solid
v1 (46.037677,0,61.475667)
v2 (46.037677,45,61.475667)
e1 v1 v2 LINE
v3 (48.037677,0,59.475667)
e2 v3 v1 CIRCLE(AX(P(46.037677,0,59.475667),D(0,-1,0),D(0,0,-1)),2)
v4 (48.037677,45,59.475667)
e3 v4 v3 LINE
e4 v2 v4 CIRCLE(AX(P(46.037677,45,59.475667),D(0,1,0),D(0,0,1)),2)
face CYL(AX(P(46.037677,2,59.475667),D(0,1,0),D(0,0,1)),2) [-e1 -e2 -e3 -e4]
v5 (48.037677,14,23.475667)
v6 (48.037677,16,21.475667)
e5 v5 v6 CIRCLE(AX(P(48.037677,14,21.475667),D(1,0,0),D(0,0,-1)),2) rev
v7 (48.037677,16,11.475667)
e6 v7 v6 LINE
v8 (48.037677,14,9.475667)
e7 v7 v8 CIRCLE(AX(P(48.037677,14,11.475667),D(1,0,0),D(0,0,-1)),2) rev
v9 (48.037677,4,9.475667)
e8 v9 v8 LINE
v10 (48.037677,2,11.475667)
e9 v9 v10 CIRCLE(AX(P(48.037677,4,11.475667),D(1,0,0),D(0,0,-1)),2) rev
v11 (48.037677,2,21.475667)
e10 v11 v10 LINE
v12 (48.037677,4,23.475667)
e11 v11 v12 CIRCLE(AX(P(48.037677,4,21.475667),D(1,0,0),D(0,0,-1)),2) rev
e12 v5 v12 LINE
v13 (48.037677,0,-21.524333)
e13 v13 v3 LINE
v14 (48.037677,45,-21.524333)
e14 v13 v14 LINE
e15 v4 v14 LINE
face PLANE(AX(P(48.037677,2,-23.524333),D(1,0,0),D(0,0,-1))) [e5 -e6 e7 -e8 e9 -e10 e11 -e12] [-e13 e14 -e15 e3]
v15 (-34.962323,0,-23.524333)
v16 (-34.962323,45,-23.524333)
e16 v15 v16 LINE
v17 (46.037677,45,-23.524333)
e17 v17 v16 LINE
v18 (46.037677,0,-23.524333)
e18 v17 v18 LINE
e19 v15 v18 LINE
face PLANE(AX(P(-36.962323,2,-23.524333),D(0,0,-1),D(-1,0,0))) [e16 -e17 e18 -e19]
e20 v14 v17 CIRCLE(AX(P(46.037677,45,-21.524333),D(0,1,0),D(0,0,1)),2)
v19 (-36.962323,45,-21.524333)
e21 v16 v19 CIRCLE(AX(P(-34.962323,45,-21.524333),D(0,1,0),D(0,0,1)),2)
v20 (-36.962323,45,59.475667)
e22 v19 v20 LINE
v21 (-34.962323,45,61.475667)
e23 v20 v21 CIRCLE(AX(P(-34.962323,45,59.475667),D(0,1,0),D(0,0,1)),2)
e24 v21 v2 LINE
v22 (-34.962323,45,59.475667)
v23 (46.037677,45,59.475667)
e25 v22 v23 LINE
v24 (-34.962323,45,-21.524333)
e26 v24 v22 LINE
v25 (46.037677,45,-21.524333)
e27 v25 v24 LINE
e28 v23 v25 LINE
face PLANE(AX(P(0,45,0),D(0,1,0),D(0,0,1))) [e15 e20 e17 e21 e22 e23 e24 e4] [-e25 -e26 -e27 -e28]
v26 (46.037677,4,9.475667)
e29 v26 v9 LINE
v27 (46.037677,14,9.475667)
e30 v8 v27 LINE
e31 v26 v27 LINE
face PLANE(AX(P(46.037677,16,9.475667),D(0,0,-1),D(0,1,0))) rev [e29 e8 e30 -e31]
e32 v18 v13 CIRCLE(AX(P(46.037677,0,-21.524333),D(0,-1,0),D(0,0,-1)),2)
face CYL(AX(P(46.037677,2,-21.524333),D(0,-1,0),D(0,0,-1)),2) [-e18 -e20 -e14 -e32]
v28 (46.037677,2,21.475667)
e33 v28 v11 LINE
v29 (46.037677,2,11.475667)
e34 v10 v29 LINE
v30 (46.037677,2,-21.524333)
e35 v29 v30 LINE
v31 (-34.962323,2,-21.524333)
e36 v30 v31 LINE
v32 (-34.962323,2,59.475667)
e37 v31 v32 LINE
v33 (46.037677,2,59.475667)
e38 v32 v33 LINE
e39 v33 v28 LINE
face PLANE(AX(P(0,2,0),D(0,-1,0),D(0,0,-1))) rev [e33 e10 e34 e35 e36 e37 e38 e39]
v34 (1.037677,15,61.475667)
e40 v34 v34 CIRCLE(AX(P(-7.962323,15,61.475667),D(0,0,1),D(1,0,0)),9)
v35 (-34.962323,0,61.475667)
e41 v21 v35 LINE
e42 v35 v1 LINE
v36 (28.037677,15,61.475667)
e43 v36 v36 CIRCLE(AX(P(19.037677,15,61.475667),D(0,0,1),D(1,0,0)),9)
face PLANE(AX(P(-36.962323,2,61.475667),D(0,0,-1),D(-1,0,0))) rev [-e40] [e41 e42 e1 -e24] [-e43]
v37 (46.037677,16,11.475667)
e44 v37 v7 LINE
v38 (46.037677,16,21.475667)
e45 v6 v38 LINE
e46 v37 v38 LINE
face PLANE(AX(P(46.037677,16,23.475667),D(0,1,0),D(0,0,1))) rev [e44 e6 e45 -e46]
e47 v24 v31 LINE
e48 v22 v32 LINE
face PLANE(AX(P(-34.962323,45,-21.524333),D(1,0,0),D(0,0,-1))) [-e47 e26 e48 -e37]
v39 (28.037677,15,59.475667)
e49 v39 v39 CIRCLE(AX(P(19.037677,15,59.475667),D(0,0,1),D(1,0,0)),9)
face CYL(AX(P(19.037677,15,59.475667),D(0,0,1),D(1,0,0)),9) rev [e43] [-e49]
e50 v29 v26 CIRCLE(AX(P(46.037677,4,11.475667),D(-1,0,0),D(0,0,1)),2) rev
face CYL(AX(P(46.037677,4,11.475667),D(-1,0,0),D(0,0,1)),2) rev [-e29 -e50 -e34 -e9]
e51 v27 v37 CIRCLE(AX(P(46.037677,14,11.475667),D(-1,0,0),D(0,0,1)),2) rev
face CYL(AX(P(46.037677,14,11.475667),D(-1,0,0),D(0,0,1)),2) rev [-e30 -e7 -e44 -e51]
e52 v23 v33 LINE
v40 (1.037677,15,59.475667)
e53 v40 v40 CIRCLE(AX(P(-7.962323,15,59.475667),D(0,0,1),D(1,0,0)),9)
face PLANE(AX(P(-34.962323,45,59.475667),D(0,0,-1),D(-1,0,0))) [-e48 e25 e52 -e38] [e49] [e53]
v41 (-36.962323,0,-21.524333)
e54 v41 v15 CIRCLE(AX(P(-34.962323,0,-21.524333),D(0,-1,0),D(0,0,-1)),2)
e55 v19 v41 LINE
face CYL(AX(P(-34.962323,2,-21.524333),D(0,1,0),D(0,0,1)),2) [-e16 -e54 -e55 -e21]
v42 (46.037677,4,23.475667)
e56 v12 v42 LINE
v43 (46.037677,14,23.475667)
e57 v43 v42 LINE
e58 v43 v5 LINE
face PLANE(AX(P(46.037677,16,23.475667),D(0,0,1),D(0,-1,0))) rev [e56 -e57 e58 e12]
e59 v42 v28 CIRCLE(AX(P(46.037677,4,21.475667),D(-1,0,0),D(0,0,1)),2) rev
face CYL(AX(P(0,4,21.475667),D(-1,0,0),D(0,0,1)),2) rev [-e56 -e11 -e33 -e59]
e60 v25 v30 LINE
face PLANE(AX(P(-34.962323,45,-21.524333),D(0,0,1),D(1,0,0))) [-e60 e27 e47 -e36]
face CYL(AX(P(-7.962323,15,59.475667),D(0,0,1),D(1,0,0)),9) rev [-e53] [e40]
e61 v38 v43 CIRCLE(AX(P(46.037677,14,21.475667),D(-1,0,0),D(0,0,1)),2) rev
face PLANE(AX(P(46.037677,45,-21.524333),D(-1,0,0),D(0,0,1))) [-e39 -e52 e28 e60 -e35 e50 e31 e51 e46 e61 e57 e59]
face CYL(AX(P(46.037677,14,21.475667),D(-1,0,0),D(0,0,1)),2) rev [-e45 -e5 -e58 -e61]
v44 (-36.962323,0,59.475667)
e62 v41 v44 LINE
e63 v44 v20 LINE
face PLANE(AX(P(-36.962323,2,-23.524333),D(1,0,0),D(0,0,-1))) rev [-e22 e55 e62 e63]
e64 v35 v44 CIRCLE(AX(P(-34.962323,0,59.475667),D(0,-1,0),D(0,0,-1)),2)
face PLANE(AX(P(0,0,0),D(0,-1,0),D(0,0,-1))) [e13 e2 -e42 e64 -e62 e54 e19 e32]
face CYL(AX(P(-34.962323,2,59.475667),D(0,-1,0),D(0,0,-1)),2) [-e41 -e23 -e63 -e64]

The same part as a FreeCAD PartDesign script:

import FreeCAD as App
import Part
import Sketcher
from FreeCAD import Vector


def edges_at(feature, points):
    """Names of the edges that pass closest to the given points."""
    edges = feature.Shape.Edges
    near = lambda p: min(range(len(edges)), key=lambda i: edges[i].distToShape(Part.Vertex(*p))[0])
    return sorted({f"Edge{near(p) + 1}" for p in points})


def add_polygon(sketch, points):
    """Adds a closed chain of lines whose ends are joined by coincident constraints."""
    first, n = sketch.GeometryCount, len(points)
    for a, b in zip(points, points[1:] + points[:1]):
        sketch.addGeometry(Part.LineSegment(App.Vector(*a, 0), App.Vector(*b, 0)), False)
    for i in range(n):
        sketch.addConstraint(Sketcher.Constraint("Coincident", first + i, 2, first + (i + 1) % n, 1))

doc = App.newDocument("Part")
body = doc.addObject("PartDesign::Body", "Body")

# Sketch on XZ plane
sketch1 = body.newObject("Sketcher::SketchObject", "Sketch")
sketch1.AttachmentSupport = (doc.getObject("XZ_Plane"), [""])
sketch1.MapMode = "FlatFace"
add_polygon(sketch1, [(-37, -24), (-37, 61), (48, 61), (48, -24)])  # lines 0-3
sketch1.addConstraint(Sketcher.Constraint("Vertical", 0))
sketch1.addConstraint(Sketcher.Constraint("Horizontal", 1))
sketch1.addConstraint(Sketcher.Constraint("Vertical", 2))
sketch1.addConstraint(Sketcher.Constraint("Horizontal", 3))
sketch1.addConstraint(Sketcher.Constraint("Equal", 3, 0))
sketch1.addConstraint(Sketcher.Constraint("DistanceX", 1, 1, 1, 2, 85.0))
sketch1.addConstraint(Sketcher.Constraint("DistanceX", 0, 2, -1, 1, 36.962323))
sketch1.addConstraint(Sketcher.Constraint("DistanceY", -1, 1, 0, 2, 61.475667))
pad1 = body.newObject("PartDesign::Pad", "Pad")
pad1.Profile = sketch1
pad1.Length = 2
pad1.Reversed = True

# Sketch on XZ plane
sketch2 = body.newObject("Sketcher::SketchObject", "Sketch001")
sketch2.AttachmentSupport = (doc.getObject("XZ_Plane"), [""])
sketch2.MapMode = "FlatFace"
sketch2.AttachmentOffset = App.Placement(Vector(0, 0, -2), App.Rotation())
add_polygon(sketch2, [(-37, -24), (-37, 61), (48, 61), (48, -24)])  # lines 0-3
add_polygon(sketch2, [(46, 59), (-35, 59), (-35, -22), (46, -22)])  # lines 4-7
sketch2.addConstraint(Sketcher.Constraint("Vertical", 0))
sketch2.addConstraint(Sketcher.Constraint("Horizontal", 1))
sketch2.addConstraint(Sketcher.Constraint("Vertical", 2))
sketch2.addConstraint(Sketcher.Constraint("Horizontal", 3))
sketch2.addConstraint(Sketcher.Constraint("Horizontal", 4))
sketch2.addConstraint(Sketcher.Constraint("Vertical", 5))
sketch2.addConstraint(Sketcher.Constraint("Horizontal", 6))
sketch2.addConstraint(Sketcher.Constraint("Vertical", 7))
sketch2.addConstraint(Sketcher.Constraint("Equal", 3, 0))
sketch2.addConstraint(Sketcher.Constraint("Equal", 6, 5))
sketch2.addConstraint(Sketcher.Constraint("DistanceX", 1, 1, 1, 2, 85.0))
sketch2.addConstraint(Sketcher.Constraint("DistanceX", 4, 2, 4, 1, 81.0))
sketch2.addConstraint(Sketcher.Constraint("DistanceX", 0, 2, 4, 2, 2.0))
sketch2.addConstraint(Sketcher.Constraint("DistanceY", 4, 2, 0, 2, 2.0))
sketch2.addConstraint(Sketcher.Constraint("DistanceX", 0, 2, -1, 1, 36.962323))
sketch2.addConstraint(Sketcher.Constraint("DistanceY", -1, 1, 0, 2, 61.475667))
pad2 = body.newObject("PartDesign::Pad", "Pad001")
pad2.Profile = sketch2
pad2.Length = 43
pad2.Reversed = True

# Sketch on XY plane
sketch3 = body.newObject("Sketcher::SketchObject", "Sketch002")
sketch3.AttachmentSupport = (doc.getObject("XY_Plane"), [""])
sketch3.MapMode = "FlatFace"
sketch3.AttachmentOffset = App.Placement(Vector(0, 0, 61.475667), App.Rotation())
sketch3.addGeometry(Part.Circle(Vector(-8, 15, 0), Vector(0, 0, 1), 9), False)
sketch3.addGeometry(Part.Circle(Vector(19, 15, 0), Vector(0, 0, 1), 9), False)
sketch3.addConstraint(Sketcher.Constraint("Equal", 0, 1))
sketch3.addConstraint(Sketcher.Constraint("Horizontal", 0, 3, 1, 3))
sketch3.addConstraint(Sketcher.Constraint("Diameter", 0, 18.0))
sketch3.addConstraint(Sketcher.Constraint("DistanceY", -1, 1, 0, 3, 15.0))
sketch3.addConstraint(Sketcher.Constraint("DistanceX", 0, 3, 1, 3, 27.0))
sketch3.addConstraint(Sketcher.Constraint("DistanceX", 0, 3, -1, 1, 7.962323))
pocket1 = body.newObject("PartDesign::Pocket", "Pocket")
pocket1.Profile = sketch3
pocket1.Length = 2

# Sketch on YZ plane
sketch4 = body.newObject("Sketcher::SketchObject", "Sketch003")
sketch4.AttachmentSupport = (doc.getObject("YZ_Plane"), [""])
sketch4.MapMode = "FlatFace"
sketch4.AttachmentOffset = App.Placement(Vector(0, 0, 48.037677), App.Rotation())
add_polygon(sketch4, [(16, 23), (2, 23), (2, 9), (16, 9)])  # lines 0-3
sketch4.addConstraint(Sketcher.Constraint("Horizontal", 0))
sketch4.addConstraint(Sketcher.Constraint("Vertical", 1))
sketch4.addConstraint(Sketcher.Constraint("Horizontal", 2))
sketch4.addConstraint(Sketcher.Constraint("Vertical", 3))
sketch4.addConstraint(Sketcher.Constraint("Equal", 2, 1))
sketch4.addConstraint(Sketcher.Constraint("DistanceX", 0, 2, 0, 1, 14.0))
sketch4.addConstraint(Sketcher.Constraint("DistanceX", -1, 1, 0, 2, 2.0))
sketch4.addConstraint(Sketcher.Constraint("DistanceY", -1, 1, 0, 2, 23.475667))
pocket2 = body.newObject("PartDesign::Pocket", "Pocket001")
pocket2.Profile = sketch4
pocket2.Length = 2
doc.recompute()

fillet = body.newObject("PartDesign::Fillet", "Fillet")
fillet.Base = (pocket2, edges_at(pocket2, [
    (47.038, 2, 23.476),
    (47.038, 16, 23.476),
    (47.038, 16, 9.476),
    (47.038, 2, 9.476),
    (-36.962, 22.5, -23.524),
    (-36.962, 22.5, 61.476),
    (48.038, 22.5, 61.476),
    (48.038, 22.5, -23.524),
]))
fillet.Radius = 2

doc.recompute()
